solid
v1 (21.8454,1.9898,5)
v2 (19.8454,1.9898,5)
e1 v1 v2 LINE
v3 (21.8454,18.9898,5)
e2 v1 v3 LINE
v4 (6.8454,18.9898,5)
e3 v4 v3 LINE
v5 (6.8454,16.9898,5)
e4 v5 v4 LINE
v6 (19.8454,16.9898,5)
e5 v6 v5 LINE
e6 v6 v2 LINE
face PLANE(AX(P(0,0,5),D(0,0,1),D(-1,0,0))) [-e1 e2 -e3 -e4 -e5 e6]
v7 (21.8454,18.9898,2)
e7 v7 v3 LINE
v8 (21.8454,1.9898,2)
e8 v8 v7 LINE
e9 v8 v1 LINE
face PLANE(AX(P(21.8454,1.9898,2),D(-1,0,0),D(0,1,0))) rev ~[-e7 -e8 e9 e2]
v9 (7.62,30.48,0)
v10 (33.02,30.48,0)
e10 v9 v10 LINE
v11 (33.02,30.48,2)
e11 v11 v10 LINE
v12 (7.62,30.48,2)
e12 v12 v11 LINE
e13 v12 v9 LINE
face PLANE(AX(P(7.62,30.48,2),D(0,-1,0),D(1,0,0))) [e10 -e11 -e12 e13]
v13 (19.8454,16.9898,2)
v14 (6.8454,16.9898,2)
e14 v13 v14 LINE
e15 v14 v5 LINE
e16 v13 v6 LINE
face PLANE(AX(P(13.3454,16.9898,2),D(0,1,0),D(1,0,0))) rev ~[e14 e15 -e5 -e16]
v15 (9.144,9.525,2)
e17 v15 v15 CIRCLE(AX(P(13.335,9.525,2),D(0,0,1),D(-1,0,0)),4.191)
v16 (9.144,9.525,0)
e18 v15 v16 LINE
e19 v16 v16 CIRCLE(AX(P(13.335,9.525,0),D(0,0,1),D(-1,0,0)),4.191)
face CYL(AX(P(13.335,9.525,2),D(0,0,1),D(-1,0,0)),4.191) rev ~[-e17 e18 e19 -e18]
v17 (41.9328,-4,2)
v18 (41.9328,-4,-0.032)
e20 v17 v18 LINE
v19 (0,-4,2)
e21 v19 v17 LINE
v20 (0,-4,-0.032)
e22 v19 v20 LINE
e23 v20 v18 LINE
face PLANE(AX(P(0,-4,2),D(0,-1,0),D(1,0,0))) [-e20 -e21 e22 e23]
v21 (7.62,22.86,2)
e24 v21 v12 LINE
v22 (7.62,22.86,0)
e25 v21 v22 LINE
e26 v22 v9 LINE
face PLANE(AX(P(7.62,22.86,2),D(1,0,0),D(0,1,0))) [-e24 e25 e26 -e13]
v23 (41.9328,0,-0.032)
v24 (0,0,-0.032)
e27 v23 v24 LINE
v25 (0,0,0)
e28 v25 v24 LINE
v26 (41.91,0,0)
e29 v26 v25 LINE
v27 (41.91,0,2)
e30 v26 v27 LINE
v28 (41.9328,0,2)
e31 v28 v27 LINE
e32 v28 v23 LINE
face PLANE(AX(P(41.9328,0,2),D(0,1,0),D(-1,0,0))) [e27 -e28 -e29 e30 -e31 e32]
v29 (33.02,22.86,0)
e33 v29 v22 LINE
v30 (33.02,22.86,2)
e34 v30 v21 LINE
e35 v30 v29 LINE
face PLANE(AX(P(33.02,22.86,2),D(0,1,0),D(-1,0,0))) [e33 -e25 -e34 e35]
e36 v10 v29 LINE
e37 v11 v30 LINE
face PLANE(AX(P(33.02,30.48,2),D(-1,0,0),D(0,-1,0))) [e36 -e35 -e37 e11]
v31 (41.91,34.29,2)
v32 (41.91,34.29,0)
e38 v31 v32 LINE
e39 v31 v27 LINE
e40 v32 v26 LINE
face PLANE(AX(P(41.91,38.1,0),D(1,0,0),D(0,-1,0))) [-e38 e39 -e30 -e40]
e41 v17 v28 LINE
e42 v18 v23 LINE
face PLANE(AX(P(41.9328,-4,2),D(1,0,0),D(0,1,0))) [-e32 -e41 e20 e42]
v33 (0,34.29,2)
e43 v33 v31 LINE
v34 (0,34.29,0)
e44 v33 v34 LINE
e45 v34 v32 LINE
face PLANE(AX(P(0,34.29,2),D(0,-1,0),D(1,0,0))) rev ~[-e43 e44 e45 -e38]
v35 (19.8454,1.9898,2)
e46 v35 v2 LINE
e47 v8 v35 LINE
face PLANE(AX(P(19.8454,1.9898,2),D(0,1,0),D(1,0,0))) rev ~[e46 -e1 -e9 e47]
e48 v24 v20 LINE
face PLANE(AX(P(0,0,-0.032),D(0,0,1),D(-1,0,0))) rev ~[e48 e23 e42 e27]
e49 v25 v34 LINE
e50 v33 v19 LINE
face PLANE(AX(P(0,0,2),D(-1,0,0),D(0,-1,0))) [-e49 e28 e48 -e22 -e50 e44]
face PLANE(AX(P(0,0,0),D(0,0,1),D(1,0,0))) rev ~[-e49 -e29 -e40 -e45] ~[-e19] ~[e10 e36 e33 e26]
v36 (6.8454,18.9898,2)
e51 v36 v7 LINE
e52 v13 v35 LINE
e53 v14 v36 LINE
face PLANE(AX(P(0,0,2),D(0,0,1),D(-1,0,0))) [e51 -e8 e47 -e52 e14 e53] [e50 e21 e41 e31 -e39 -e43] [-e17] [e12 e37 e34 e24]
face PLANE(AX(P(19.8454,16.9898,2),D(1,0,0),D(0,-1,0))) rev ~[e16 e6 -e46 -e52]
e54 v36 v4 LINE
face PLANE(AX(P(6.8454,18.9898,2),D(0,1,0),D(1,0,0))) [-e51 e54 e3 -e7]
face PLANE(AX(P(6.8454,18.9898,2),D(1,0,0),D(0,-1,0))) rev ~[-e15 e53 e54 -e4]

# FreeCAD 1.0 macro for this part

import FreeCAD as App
import Part
import Sketcher
from FreeCAD import Vector
Q = App.Units.Quantity


def add_polygon(sketch, points):
    """Adds a closed chain of lines whose ends are joined by coincident constraints."""
    first, n = sketch.GeometryCount, len(points)
    for a, b in zip(points, points[1:] + points[:1]):
        sketch.addGeometry(Part.LineSegment(App.Vector(*a, 0), App.Vector(*b, 0)), False)
    for i in range(n):
        sketch.addConstraint(Sketcher.Constraint("Coincident", first + i, 2, first + (i + 1) % n, 1))

doc = App.newDocument("Part")
params = doc.addObject("Spreadsheet::Sheet", "Params")
for row, (alias, value) in enumerate([
    ("sketch1_height", "1.5 in"),
    ("sketch1_width", "1.65 in"),
    ("pad1_length", "2 mm"),
    ("sketch2_diameter", "0.33 in"),
    ("pocket1_length", "1.1 in"),
    ("sketch3_width", "1.65 in"),
    ("sketch3_height", "0.15 in"),
    ("pocket2_length", "0.1 in"),
    ("pad2_length", "0.08 in"),
    ("sketch5_width", "1 in"),
    ("sketch5_height", "0.3 in"),
    ("pocket3_length", "0.1 in"),
    ("pad3_length", "0.1181102 in"),
], start=1):
    params.set(f"A{row}", alias)
    params.set(f"B{row}", "=" + value)
    params.setAlias(f"B{row}", alias)

body = doc.addObject("PartDesign::Body", "Body")

# Sketch on XY plane
sketch1 = doc.addObject("Sketcher::SketchObject", "Sketch")
body.addObject(sketch1)
sketch1.AttachmentSupport = (doc.XY_Plane, [""])
sketch1.MapMode = "FlatFace"
add_polygon(sketch1, [(0, 38), (0, 0), (42, 0), (42, 38)])  # lines 0-3
sketch1.addConstraint([
    Sketcher.Constraint("Vertical", 0),
    Sketcher.Constraint("Horizontal", 1),
    Sketcher.Constraint("Vertical", 2),
    Sketcher.Constraint("Horizontal", 3),
    Sketcher.Constraint("Coincident", 0, 2, -1, 1),
    Sketcher.Constraint("DistanceY", 0, 2, 0, 1, Q("1.5 in")),
    Sketcher.Constraint("DistanceX", 1, 1, 1, 2, Q("1.65 in")),
])
sketch1.setExpression("Constraints[9]", "Params.sketch1_height")
sketch1.setExpression("Constraints[10]", "Params.sketch1_width")
pad1 = doc.addObject("PartDesign::Pad", "Pad")
body.addObject(pad1)
pad1.Profile = sketch1
pad1.setExpression("Length", "Params.pad1_length")

# Sketch on XY plane
sketch2 = doc.addObject("Sketcher::SketchObject", "Sketch001")
body.addObject(sketch2)
sketch2.AttachmentSupport = (doc.XY_Plane, [""])
sketch2.MapMode = "FlatFace"
sketch2.AttachmentOffset = App.Placement(Vector(0, 0, 2), App.Rotation())
sketch2.addGeometry(Part.Circle(Vector(13.3, 9.5, 0), Vector(0, 0, 1), 4.2), False)
sketch2.addConstraint([
    Sketcher.Constraint("Diameter", 0, Q("0.33 in")),
    Sketcher.Constraint("DistanceX", -1, 1, 0, 3, Q("0.525 in")),
    Sketcher.Constraint("DistanceY", -1, 1, 0, 3, Q("0.375 in")),
])
sketch2.setExpression("Constraints[0]", "Params.sketch2_diameter")
pocket1 = doc.addObject("PartDesign::Pocket", "Pocket")
body.addObject(pocket1)
pocket1.Profile = sketch2
pocket1.setExpression("Length", "Params.pocket1_length")

# Sketch on XY plane
sketch3 = doc.addObject("Sketcher::SketchObject", "Sketch002")
body.addObject(sketch3)
sketch3.AttachmentSupport = (doc.XY_Plane, [""])
sketch3.MapMode = "FlatFace"
sketch3.AttachmentOffset = App.Placement(Vector(0, 0, 2), App.Rotation())
add_polygon(sketch3, [(0, 38.1), (0, 34.3), (41.9, 34.3), (41.9, 38.1)])  # lines 0-3
sketch3.addConstraint([
    Sketcher.Constraint("Vertical", 0),
    Sketcher.Constraint("Horizontal", 1),
    Sketcher.Constraint("Vertical", 2),
    Sketcher.Constraint("Horizontal", 3),
    Sketcher.Constraint("PointOnObject", 0, 2, -2),
    Sketcher.Constraint("DistanceX", 1, 1, 1, 2, Q("1.65 in")),
    Sketcher.Constraint("DistanceY", 0, 2, 0, 1, Q("0.15 in")),
    Sketcher.Constraint("DistanceY", -1, 1, 2, 2, Q("1.5 in")),
])
sketch3.setExpression("Constraints[9]", "Params.sketch3_width")
sketch3.setExpression("Constraints[10]", "Params.sketch3_height")
pocket2 = doc.addObject("PartDesign::Pocket", "Pocket001")
body.addObject(pocket2)
pocket2.Profile = sketch3
pocket2.setExpression("Length", "Params.pocket2_length")

# Sketch on XY plane
sketch4 = doc.addObject("Sketcher::SketchObject", "Sketch003")
body.addObject(sketch4)
sketch4.AttachmentSupport = (doc.XY_Plane, [""])
sketch4.MapMode = "FlatFace"
sketch4.AttachmentOffset = App.Placement(Vector(0, 0, 2), App.Rotation())
add_polygon(sketch4, [(41.9, 0), (0, 0), (0, -4), (41.9, -4)])  # lines 0-3
sketch4.addConstraint([
    Sketcher.Constraint("Horizontal", 0),
    Sketcher.Constraint("Vertical", 1),
    Sketcher.Constraint("Horizontal", 2),
    Sketcher.Constraint("Vertical", 3),
    Sketcher.Constraint("Coincident", 0, 2, -1, 1),
    Sketcher.Constraint("DistanceY", 1, 2, 1, 1, Q("4 mm")),
    Sketcher.Constraint("DistanceX", 0, 2, 0, 1, Q("1.6509 in")),
])
pad2 = doc.addObject("PartDesign::Pad", "Pad001")
body.addObject(pad2)
pad2.Profile = sketch4
pad2.setExpression("Length", "Params.pad2_length")
pad2.Reversed = True

# Sketch on XY plane
sketch5 = doc.addObject("Sketcher::SketchObject", "Sketch004")
body.addObject(sketch5)
sketch5.AttachmentSupport = (doc.XY_Plane, [""])
sketch5.MapMode = "FlatFace"
sketch5.AttachmentOffset = App.Placement(Vector(0, 0, 2), App.Rotation())
add_polygon(sketch5, [(33, 30), (8, 30), (8, 23), (33, 23)])  # lines 0-3
sketch5.addConstraint([
    Sketcher.Constraint("Horizontal", 0),
    Sketcher.Constraint("Vertical", 1),
    Sketcher.Constraint("Horizontal", 2),
    Sketcher.Constraint("Vertical", 3),
    Sketcher.Constraint("DistanceX", 0, 2, 0, 1, Q("1 in")),
    Sketcher.Constraint("DistanceY", 1, 2, 1, 1, Q("0.3 in")),
    Sketcher.Constraint("DistanceX", -1, 1, 0, 2, Q("0.3 in")),
    Sketcher.Constraint("DistanceY", -1, 1, 0, 2, Q("1.2 in")),
])
sketch5.setExpression("Constraints[8]", "Params.sketch5_width")
sketch5.setExpression("Constraints[9]", "Params.sketch5_height")
pocket3 = doc.addObject("PartDesign::Pocket", "Pocket002")
body.addObject(pocket3)
pocket3.Profile = sketch5
pocket3.setExpression("Length", "Params.pocket3_length")

# Sketch on XY plane
sketch6 = doc.addObject("Sketcher::SketchObject", "Sketch005")
body.addObject(sketch6)
sketch6.AttachmentSupport = (doc.XY_Plane, [""])
sketch6.MapMode = "FlatFace"
sketch6.AttachmentOffset = App.Placement(Vector(0, 0, 2), App.Rotation())
add_polygon(sketch6, [(6.8, 17), (19.8, 17), (19.8, 2), (21.8, 2), (21.8, 19), (6.8, 19)])  # lines 0-5
sketch6.addConstraint([
    Sketcher.Constraint("Horizontal", 0),
    Sketcher.Constraint("Vertical", 1),
    Sketcher.Constraint("Horizontal", 2),
    Sketcher.Constraint("Vertical", 3),
    Sketcher.Constraint("Horizontal", 4),
    Sketcher.Constraint("Vertical", 5),
    Sketcher.Constraint("Equal", 4, 1),
    Sketcher.Constraint("Equal", 2, 5),
    Sketcher.Constraint("DistanceX", 0, 1, 0, 2, Q("0.5118 in")),
    Sketcher.Constraint("DistanceX", 2, 1, 2, 2, Q("2 mm")),
    Sketcher.Constraint("DistanceY", -1, 1, 0, 2, Q("0.6689 in")),
    Sketcher.Constraint("DistanceX", -1, 1, 4, 2, Q("0.2695 in")),
])
pad3 = doc.addObject("PartDesign::Pad", "Pad002")
body.addObject(pad3)
pad3.Profile = sketch6
pad3.setExpression("Length", "Params.pad3_length")

doc.recompute()
